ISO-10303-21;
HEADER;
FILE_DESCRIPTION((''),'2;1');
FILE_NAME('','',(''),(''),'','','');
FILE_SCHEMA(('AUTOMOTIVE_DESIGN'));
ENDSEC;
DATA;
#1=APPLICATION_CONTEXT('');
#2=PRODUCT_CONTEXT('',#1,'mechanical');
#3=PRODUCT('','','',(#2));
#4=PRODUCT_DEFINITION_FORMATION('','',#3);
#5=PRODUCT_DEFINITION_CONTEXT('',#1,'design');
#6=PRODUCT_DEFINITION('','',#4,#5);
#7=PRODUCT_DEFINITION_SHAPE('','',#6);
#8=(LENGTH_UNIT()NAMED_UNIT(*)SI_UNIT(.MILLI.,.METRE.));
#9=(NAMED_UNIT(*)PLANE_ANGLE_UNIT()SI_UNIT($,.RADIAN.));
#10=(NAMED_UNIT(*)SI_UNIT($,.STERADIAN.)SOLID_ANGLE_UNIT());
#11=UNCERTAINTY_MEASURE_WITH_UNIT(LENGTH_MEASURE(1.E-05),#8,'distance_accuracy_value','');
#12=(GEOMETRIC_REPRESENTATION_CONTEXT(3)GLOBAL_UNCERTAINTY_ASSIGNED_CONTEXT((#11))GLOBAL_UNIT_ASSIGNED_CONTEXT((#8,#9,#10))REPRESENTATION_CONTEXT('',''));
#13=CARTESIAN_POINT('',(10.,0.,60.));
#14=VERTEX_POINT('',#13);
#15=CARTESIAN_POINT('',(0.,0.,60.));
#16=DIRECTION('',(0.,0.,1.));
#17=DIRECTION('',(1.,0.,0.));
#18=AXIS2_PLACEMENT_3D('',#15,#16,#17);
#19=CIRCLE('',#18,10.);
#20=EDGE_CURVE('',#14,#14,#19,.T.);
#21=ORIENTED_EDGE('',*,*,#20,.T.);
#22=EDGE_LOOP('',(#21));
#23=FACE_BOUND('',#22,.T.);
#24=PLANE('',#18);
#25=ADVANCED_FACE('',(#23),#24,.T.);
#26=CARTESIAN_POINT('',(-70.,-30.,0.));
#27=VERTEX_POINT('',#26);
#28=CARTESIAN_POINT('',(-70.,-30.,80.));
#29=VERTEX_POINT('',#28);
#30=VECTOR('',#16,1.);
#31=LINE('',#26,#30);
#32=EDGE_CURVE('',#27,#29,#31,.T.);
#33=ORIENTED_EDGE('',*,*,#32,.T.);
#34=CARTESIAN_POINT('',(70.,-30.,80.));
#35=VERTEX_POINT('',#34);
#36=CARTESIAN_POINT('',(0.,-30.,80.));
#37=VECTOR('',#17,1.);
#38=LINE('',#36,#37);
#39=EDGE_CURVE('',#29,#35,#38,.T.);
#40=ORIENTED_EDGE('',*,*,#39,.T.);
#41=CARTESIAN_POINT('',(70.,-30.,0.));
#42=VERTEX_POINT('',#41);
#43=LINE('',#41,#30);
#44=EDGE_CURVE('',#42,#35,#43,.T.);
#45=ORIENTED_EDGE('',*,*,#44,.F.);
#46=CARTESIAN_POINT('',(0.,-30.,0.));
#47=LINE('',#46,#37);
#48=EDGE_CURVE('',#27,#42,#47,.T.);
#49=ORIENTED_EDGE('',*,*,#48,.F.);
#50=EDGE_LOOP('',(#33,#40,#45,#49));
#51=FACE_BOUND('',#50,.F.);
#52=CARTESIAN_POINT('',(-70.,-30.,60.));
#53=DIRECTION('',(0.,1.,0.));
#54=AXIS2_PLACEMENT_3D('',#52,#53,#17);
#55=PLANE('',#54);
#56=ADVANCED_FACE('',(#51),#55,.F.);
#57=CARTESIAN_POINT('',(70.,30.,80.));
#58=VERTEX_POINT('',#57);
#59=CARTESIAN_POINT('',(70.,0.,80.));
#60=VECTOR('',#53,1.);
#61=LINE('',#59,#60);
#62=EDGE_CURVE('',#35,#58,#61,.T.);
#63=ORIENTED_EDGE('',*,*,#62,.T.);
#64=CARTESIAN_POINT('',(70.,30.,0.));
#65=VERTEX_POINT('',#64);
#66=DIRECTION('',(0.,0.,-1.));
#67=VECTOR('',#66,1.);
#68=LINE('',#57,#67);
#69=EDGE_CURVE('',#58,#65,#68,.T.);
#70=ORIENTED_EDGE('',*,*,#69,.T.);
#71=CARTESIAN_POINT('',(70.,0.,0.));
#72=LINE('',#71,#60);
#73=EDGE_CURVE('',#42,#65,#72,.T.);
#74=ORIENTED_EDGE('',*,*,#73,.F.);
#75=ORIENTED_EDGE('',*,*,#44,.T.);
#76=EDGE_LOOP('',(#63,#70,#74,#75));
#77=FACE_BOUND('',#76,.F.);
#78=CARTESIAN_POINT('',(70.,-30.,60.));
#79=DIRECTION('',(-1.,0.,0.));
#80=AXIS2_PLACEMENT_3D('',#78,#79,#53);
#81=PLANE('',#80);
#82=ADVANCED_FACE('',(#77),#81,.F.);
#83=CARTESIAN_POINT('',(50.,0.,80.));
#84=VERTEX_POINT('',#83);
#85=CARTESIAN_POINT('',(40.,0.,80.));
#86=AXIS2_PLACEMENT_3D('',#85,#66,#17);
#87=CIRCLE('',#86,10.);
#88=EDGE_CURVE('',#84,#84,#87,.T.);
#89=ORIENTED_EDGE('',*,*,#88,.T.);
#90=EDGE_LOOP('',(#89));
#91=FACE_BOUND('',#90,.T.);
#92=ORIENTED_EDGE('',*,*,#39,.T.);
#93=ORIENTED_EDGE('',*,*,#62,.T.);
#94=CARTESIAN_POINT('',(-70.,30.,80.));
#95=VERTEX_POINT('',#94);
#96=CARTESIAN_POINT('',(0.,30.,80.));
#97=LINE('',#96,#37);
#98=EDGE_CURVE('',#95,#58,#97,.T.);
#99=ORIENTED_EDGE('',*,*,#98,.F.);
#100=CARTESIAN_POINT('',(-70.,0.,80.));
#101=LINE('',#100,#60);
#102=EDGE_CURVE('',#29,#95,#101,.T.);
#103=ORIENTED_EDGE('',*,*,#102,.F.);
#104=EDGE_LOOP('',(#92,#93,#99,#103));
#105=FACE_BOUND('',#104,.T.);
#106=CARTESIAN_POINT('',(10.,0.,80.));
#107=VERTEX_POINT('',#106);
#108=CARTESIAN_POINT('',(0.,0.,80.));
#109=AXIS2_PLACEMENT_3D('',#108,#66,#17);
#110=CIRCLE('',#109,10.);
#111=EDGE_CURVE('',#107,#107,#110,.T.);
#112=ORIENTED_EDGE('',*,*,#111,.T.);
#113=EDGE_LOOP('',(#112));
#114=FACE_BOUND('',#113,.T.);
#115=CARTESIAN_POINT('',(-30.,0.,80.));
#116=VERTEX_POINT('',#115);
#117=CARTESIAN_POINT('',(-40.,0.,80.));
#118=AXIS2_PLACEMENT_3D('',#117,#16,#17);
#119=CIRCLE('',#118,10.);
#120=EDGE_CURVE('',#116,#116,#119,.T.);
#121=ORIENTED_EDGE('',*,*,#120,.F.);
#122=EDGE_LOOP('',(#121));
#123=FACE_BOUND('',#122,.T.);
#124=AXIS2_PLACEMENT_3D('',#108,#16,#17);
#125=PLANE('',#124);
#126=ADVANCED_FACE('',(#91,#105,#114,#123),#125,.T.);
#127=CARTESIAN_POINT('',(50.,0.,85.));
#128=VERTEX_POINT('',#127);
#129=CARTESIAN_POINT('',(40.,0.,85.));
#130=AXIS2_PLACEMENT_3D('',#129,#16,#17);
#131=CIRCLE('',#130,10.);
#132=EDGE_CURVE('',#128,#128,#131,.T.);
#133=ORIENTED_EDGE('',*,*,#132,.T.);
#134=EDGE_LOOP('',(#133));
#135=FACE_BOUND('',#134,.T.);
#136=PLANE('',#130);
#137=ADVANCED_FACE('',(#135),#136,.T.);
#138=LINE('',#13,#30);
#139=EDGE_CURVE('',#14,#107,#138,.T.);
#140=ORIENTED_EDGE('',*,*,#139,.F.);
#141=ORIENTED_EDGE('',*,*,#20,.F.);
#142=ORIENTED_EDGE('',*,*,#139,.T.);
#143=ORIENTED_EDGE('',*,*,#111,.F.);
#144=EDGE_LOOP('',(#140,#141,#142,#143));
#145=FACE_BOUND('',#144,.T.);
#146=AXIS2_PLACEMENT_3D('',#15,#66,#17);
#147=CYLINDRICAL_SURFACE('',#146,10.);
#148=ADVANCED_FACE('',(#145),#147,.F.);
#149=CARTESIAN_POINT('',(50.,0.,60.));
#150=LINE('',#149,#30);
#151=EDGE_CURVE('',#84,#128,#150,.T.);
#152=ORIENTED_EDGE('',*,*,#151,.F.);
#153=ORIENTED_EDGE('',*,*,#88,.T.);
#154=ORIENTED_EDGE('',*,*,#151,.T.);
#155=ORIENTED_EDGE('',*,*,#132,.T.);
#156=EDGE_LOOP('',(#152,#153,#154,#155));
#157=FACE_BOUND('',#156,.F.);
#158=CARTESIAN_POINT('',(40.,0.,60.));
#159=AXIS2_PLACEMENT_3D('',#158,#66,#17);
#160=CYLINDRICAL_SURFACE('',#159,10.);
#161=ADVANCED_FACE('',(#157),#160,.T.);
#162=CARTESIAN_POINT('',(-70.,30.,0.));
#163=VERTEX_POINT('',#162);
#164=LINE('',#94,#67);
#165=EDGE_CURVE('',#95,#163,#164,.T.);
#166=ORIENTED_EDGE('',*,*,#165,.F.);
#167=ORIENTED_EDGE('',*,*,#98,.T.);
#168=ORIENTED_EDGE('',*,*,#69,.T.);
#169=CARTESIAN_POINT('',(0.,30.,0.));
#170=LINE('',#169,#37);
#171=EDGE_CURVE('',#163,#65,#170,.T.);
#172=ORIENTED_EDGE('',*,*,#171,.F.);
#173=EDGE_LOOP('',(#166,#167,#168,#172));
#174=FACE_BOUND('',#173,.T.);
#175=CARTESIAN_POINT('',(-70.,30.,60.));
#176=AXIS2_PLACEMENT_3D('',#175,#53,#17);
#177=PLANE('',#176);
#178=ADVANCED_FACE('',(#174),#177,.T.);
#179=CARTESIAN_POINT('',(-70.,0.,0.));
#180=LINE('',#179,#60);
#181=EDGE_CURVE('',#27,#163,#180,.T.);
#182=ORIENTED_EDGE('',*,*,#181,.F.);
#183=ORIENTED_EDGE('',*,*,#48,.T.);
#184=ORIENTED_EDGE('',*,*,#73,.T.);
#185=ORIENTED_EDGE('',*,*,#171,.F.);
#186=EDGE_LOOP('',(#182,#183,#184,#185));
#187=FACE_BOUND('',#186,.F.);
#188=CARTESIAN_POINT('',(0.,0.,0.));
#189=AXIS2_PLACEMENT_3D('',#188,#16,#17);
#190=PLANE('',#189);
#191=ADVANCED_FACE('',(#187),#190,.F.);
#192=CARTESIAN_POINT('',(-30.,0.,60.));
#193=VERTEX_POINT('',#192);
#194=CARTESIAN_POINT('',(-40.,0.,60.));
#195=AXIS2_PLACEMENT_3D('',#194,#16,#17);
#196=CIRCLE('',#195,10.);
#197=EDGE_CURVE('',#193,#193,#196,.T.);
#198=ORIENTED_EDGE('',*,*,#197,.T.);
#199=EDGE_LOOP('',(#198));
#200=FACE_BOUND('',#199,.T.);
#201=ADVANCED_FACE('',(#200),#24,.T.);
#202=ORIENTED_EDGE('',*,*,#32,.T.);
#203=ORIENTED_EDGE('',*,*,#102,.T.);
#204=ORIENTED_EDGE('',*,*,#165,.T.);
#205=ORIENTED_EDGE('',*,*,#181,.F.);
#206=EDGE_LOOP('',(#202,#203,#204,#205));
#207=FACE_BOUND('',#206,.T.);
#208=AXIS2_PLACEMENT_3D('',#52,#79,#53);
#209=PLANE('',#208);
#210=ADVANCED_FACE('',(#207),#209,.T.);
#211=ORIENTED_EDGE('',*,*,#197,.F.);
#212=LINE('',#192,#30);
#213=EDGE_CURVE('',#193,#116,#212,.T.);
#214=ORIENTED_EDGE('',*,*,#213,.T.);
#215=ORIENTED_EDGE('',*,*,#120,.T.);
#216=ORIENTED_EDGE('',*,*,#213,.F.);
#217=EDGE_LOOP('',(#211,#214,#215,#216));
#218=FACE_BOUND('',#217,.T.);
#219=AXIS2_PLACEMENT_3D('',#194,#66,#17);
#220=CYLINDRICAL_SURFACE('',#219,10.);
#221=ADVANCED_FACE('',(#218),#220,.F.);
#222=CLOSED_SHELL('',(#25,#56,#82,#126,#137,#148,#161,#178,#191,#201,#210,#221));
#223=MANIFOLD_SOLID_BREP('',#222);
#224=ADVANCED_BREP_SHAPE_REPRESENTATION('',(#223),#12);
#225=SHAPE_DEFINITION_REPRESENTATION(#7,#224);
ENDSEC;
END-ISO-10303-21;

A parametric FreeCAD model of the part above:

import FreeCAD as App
import Part
import Sketcher

V = App.Vector
Q = App.Units.Quantity


def add_polygon(sketch, points):
    """Adds a closed chain of lines whose ends are joined by coincident constraints."""
    first, n = sketch.GeometryCount, len(points)
    for a, b in zip(points, points[1:] + points[:1]):
        sketch.addGeometry(Part.LineSegment(App.Vector(*a, 0), App.Vector(*b, 0)), False)
    for i in range(n):
        sketch.addConstraint(Sketcher.Constraint("Coincident", first + i, 2, first + (i + 1) % n, 1))

doc = App.newDocument("Part")
body = doc.addObject("PartDesign::Body", "Body")

sketch1 = body.newObject("Sketcher::SketchObject", "Sketch")
sketch1.AttachmentSupport = (doc.getObject("XY_Plane"), [""])
sketch1.MapMode = "FlatFace"
add_polygon(sketch1, [(-70, 30), (-70, -30), (70, -30), (70, 30)])
sketch1.addConstraint([
    Sketcher.Constraint("Vertical", 0),
    Sketcher.Constraint("Horizontal", 1),
    Sketcher.Constraint("Vertical", 2),
    Sketcher.Constraint("Horizontal", 3),
    Sketcher.Constraint("Symmetric", 0, 2, 2, 2, -1, 1),
    Sketcher.Constraint("DistanceX", 1, 1, 1, 2, Q("140 mm")),
    Sketcher.Constraint("DistanceY", 0, 2, 0, 1, Q("60 mm")),
])
pad1 = body.newObject("PartDesign::Pad", "Pad")
pad1.Profile = sketch1
pad1.Length = 60

sketch2 = body.newObject("Sketcher::SketchObject", "Sketch001")
sketch2.AttachmentSupport = (doc.getObject("XY_Plane"), [""])
sketch2.MapMode = "FlatFace"
sketch2.AttachmentOffset = App.Placement(V(0, 0, 60), App.Rotation())
add_polygon(sketch2, [(-70, 30), (-70, -30), (70, -30), (70, 30)])
sketch2.addGeometry(Part.Circle(V(-40, 0, 0), V(0, 0, 1), 10), False)
sketch2.addConstraint([
    Sketcher.Constraint("Vertical", 0),
    Sketcher.Constraint("Horizontal", 1),
    Sketcher.Constraint("Vertical", 2),
    Sketcher.Constraint("Horizontal", 3),
    Sketcher.Constraint("Symmetric", 0, 2, 2, 2, -1, 1),
    Sketcher.Constraint("PointOnObject", 4, 3, -1),
    Sketcher.Constraint("Diameter", 4, Q("20 mm")),
    Sketcher.Constraint("DistanceX", 1, 1, 1, 2, Q("140 mm")),
    Sketcher.Constraint("DistanceY", 0, 2, 0, 1, Q("60 mm")),
    Sketcher.Constraint("DistanceX", 4, 3, -1, 1, Q("40 mm")),
])
pad2 = body.newObject("PartDesign::Pad", "Pad001")
pad2.Profile = sketch2
pad2.Length = 20

sketch3 = body.newObject("Sketcher::SketchObject", "Sketch002")
sketch3.AttachmentSupport = (doc.getObject("XY_Plane"), [""])
sketch3.MapMode = "FlatFace"
sketch3.AttachmentOffset = App.Placement(V(0, 0, 60), App.Rotation())
sketch3.addGeometry(Part.Circle(V(0, 0, 0), V(0, 0, 1), 10), False)
sketch3.addConstraint([
    Sketcher.Constraint("Coincident", 0, 3, -1, 1),
    Sketcher.Constraint("Diameter", 0, Q("20 mm")),
])
pocket1 = body.newObject("PartDesign::Pocket", "Pocket")
pocket1.Profile = sketch3
pocket1.Length = 500
pocket1.Reversed = True

sketch4 = body.newObject("Sketcher::SketchObject", "Sketch003")
sketch4.AttachmentSupport = (doc.getObject("XY_Plane"), [""])
sketch4.MapMode = "FlatFace"
sketch4.AttachmentOffset = App.Placement(V(0, 0, 60), App.Rotation())
sketch4.addGeometry(Part.Circle(V(40, 0, 0), V(0, 0, 1), 10), False)
sketch4.addConstraint([
    Sketcher.Constraint("PointOnObject", 0, 3, -1),
    Sketcher.Constraint("Diameter", 0, Q("20 mm")),
    Sketcher.Constraint("DistanceX", -1, 1, 0, 3, Q("40 mm")),
])
pad3 = body.newObject("PartDesign::Pad", "Pad002")
pad3.Profile = sketch4
pad3.Length = 25

doc.recompute()
